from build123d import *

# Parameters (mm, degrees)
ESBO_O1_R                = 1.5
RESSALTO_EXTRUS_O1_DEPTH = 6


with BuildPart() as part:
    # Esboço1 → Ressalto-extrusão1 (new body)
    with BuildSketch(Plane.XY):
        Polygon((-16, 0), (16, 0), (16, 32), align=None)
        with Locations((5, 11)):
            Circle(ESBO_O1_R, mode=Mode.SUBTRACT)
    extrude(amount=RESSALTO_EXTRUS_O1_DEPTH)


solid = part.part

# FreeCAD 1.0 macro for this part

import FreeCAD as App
import Part
import Sketcher

V = App.Vector


def add_polygon(sketch, points):
    """Adds a closed chain of lines whose ends are joined by coincident constraints."""
    first, n = sketch.GeometryCount, len(points)
    for a, b in zip(points, points[1:] + points[:1]):
        sketch.addGeometry(Part.LineSegment(App.Vector(*a, 0), App.Vector(*b, 0)), False)
    for i in range(n):
        sketch.addConstraint(Sketcher.Constraint("Coincident", first + i, 2, first + (i + 1) % n, 1))

doc = App.newDocument("Part")
body = doc.addObject("PartDesign::Body", "Body")

# Sketch on XY plane
sketch1 = body.newObject("Sketcher::SketchObject", "Sketch")
sketch1.AttachmentSupport = (doc.getObject("XY_Plane"), [""])
sketch1.MapMode = "FlatFace"
add_polygon(sketch1, [(-16, 0), (16, 0), (16, 32)])  # lines 0-2
sketch1.addGeometry(Part.Circle(V(5, 11, 0), V(0, 0, 1), 1.5), False)  # 3
sketch1.addConstraint(Sketcher.Constraint("Horizontal", 0))
sketch1.addConstraint(Sketcher.Constraint("Vertical", 1))
sketch1.addConstraint(Sketcher.Constraint("Symmetric", 0, 2, 2, 2, -1, 1))
sketch1.addConstraint(Sketcher.Constraint("Equal", 0, 1))
sketch1.addConstraint(Sketcher.Constraint("Diameter", 3, 3.0))
sketch1.addConstraint(Sketcher.Constraint("DistanceX", 0, 1, 0, 2, 32.0))
sketch1.addConstraint(Sketcher.Constraint("DistanceX", -1, 1, 3, 3, 5.0))
sketch1.addConstraint(Sketcher.Constraint("DistanceY", -1, 1, 3, 3, 11.0))
pad1 = body.newObject("PartDesign::Pad", "Pad")
pad1.Profile = sketch1
pad1.Length = 6

doc.recompute()
